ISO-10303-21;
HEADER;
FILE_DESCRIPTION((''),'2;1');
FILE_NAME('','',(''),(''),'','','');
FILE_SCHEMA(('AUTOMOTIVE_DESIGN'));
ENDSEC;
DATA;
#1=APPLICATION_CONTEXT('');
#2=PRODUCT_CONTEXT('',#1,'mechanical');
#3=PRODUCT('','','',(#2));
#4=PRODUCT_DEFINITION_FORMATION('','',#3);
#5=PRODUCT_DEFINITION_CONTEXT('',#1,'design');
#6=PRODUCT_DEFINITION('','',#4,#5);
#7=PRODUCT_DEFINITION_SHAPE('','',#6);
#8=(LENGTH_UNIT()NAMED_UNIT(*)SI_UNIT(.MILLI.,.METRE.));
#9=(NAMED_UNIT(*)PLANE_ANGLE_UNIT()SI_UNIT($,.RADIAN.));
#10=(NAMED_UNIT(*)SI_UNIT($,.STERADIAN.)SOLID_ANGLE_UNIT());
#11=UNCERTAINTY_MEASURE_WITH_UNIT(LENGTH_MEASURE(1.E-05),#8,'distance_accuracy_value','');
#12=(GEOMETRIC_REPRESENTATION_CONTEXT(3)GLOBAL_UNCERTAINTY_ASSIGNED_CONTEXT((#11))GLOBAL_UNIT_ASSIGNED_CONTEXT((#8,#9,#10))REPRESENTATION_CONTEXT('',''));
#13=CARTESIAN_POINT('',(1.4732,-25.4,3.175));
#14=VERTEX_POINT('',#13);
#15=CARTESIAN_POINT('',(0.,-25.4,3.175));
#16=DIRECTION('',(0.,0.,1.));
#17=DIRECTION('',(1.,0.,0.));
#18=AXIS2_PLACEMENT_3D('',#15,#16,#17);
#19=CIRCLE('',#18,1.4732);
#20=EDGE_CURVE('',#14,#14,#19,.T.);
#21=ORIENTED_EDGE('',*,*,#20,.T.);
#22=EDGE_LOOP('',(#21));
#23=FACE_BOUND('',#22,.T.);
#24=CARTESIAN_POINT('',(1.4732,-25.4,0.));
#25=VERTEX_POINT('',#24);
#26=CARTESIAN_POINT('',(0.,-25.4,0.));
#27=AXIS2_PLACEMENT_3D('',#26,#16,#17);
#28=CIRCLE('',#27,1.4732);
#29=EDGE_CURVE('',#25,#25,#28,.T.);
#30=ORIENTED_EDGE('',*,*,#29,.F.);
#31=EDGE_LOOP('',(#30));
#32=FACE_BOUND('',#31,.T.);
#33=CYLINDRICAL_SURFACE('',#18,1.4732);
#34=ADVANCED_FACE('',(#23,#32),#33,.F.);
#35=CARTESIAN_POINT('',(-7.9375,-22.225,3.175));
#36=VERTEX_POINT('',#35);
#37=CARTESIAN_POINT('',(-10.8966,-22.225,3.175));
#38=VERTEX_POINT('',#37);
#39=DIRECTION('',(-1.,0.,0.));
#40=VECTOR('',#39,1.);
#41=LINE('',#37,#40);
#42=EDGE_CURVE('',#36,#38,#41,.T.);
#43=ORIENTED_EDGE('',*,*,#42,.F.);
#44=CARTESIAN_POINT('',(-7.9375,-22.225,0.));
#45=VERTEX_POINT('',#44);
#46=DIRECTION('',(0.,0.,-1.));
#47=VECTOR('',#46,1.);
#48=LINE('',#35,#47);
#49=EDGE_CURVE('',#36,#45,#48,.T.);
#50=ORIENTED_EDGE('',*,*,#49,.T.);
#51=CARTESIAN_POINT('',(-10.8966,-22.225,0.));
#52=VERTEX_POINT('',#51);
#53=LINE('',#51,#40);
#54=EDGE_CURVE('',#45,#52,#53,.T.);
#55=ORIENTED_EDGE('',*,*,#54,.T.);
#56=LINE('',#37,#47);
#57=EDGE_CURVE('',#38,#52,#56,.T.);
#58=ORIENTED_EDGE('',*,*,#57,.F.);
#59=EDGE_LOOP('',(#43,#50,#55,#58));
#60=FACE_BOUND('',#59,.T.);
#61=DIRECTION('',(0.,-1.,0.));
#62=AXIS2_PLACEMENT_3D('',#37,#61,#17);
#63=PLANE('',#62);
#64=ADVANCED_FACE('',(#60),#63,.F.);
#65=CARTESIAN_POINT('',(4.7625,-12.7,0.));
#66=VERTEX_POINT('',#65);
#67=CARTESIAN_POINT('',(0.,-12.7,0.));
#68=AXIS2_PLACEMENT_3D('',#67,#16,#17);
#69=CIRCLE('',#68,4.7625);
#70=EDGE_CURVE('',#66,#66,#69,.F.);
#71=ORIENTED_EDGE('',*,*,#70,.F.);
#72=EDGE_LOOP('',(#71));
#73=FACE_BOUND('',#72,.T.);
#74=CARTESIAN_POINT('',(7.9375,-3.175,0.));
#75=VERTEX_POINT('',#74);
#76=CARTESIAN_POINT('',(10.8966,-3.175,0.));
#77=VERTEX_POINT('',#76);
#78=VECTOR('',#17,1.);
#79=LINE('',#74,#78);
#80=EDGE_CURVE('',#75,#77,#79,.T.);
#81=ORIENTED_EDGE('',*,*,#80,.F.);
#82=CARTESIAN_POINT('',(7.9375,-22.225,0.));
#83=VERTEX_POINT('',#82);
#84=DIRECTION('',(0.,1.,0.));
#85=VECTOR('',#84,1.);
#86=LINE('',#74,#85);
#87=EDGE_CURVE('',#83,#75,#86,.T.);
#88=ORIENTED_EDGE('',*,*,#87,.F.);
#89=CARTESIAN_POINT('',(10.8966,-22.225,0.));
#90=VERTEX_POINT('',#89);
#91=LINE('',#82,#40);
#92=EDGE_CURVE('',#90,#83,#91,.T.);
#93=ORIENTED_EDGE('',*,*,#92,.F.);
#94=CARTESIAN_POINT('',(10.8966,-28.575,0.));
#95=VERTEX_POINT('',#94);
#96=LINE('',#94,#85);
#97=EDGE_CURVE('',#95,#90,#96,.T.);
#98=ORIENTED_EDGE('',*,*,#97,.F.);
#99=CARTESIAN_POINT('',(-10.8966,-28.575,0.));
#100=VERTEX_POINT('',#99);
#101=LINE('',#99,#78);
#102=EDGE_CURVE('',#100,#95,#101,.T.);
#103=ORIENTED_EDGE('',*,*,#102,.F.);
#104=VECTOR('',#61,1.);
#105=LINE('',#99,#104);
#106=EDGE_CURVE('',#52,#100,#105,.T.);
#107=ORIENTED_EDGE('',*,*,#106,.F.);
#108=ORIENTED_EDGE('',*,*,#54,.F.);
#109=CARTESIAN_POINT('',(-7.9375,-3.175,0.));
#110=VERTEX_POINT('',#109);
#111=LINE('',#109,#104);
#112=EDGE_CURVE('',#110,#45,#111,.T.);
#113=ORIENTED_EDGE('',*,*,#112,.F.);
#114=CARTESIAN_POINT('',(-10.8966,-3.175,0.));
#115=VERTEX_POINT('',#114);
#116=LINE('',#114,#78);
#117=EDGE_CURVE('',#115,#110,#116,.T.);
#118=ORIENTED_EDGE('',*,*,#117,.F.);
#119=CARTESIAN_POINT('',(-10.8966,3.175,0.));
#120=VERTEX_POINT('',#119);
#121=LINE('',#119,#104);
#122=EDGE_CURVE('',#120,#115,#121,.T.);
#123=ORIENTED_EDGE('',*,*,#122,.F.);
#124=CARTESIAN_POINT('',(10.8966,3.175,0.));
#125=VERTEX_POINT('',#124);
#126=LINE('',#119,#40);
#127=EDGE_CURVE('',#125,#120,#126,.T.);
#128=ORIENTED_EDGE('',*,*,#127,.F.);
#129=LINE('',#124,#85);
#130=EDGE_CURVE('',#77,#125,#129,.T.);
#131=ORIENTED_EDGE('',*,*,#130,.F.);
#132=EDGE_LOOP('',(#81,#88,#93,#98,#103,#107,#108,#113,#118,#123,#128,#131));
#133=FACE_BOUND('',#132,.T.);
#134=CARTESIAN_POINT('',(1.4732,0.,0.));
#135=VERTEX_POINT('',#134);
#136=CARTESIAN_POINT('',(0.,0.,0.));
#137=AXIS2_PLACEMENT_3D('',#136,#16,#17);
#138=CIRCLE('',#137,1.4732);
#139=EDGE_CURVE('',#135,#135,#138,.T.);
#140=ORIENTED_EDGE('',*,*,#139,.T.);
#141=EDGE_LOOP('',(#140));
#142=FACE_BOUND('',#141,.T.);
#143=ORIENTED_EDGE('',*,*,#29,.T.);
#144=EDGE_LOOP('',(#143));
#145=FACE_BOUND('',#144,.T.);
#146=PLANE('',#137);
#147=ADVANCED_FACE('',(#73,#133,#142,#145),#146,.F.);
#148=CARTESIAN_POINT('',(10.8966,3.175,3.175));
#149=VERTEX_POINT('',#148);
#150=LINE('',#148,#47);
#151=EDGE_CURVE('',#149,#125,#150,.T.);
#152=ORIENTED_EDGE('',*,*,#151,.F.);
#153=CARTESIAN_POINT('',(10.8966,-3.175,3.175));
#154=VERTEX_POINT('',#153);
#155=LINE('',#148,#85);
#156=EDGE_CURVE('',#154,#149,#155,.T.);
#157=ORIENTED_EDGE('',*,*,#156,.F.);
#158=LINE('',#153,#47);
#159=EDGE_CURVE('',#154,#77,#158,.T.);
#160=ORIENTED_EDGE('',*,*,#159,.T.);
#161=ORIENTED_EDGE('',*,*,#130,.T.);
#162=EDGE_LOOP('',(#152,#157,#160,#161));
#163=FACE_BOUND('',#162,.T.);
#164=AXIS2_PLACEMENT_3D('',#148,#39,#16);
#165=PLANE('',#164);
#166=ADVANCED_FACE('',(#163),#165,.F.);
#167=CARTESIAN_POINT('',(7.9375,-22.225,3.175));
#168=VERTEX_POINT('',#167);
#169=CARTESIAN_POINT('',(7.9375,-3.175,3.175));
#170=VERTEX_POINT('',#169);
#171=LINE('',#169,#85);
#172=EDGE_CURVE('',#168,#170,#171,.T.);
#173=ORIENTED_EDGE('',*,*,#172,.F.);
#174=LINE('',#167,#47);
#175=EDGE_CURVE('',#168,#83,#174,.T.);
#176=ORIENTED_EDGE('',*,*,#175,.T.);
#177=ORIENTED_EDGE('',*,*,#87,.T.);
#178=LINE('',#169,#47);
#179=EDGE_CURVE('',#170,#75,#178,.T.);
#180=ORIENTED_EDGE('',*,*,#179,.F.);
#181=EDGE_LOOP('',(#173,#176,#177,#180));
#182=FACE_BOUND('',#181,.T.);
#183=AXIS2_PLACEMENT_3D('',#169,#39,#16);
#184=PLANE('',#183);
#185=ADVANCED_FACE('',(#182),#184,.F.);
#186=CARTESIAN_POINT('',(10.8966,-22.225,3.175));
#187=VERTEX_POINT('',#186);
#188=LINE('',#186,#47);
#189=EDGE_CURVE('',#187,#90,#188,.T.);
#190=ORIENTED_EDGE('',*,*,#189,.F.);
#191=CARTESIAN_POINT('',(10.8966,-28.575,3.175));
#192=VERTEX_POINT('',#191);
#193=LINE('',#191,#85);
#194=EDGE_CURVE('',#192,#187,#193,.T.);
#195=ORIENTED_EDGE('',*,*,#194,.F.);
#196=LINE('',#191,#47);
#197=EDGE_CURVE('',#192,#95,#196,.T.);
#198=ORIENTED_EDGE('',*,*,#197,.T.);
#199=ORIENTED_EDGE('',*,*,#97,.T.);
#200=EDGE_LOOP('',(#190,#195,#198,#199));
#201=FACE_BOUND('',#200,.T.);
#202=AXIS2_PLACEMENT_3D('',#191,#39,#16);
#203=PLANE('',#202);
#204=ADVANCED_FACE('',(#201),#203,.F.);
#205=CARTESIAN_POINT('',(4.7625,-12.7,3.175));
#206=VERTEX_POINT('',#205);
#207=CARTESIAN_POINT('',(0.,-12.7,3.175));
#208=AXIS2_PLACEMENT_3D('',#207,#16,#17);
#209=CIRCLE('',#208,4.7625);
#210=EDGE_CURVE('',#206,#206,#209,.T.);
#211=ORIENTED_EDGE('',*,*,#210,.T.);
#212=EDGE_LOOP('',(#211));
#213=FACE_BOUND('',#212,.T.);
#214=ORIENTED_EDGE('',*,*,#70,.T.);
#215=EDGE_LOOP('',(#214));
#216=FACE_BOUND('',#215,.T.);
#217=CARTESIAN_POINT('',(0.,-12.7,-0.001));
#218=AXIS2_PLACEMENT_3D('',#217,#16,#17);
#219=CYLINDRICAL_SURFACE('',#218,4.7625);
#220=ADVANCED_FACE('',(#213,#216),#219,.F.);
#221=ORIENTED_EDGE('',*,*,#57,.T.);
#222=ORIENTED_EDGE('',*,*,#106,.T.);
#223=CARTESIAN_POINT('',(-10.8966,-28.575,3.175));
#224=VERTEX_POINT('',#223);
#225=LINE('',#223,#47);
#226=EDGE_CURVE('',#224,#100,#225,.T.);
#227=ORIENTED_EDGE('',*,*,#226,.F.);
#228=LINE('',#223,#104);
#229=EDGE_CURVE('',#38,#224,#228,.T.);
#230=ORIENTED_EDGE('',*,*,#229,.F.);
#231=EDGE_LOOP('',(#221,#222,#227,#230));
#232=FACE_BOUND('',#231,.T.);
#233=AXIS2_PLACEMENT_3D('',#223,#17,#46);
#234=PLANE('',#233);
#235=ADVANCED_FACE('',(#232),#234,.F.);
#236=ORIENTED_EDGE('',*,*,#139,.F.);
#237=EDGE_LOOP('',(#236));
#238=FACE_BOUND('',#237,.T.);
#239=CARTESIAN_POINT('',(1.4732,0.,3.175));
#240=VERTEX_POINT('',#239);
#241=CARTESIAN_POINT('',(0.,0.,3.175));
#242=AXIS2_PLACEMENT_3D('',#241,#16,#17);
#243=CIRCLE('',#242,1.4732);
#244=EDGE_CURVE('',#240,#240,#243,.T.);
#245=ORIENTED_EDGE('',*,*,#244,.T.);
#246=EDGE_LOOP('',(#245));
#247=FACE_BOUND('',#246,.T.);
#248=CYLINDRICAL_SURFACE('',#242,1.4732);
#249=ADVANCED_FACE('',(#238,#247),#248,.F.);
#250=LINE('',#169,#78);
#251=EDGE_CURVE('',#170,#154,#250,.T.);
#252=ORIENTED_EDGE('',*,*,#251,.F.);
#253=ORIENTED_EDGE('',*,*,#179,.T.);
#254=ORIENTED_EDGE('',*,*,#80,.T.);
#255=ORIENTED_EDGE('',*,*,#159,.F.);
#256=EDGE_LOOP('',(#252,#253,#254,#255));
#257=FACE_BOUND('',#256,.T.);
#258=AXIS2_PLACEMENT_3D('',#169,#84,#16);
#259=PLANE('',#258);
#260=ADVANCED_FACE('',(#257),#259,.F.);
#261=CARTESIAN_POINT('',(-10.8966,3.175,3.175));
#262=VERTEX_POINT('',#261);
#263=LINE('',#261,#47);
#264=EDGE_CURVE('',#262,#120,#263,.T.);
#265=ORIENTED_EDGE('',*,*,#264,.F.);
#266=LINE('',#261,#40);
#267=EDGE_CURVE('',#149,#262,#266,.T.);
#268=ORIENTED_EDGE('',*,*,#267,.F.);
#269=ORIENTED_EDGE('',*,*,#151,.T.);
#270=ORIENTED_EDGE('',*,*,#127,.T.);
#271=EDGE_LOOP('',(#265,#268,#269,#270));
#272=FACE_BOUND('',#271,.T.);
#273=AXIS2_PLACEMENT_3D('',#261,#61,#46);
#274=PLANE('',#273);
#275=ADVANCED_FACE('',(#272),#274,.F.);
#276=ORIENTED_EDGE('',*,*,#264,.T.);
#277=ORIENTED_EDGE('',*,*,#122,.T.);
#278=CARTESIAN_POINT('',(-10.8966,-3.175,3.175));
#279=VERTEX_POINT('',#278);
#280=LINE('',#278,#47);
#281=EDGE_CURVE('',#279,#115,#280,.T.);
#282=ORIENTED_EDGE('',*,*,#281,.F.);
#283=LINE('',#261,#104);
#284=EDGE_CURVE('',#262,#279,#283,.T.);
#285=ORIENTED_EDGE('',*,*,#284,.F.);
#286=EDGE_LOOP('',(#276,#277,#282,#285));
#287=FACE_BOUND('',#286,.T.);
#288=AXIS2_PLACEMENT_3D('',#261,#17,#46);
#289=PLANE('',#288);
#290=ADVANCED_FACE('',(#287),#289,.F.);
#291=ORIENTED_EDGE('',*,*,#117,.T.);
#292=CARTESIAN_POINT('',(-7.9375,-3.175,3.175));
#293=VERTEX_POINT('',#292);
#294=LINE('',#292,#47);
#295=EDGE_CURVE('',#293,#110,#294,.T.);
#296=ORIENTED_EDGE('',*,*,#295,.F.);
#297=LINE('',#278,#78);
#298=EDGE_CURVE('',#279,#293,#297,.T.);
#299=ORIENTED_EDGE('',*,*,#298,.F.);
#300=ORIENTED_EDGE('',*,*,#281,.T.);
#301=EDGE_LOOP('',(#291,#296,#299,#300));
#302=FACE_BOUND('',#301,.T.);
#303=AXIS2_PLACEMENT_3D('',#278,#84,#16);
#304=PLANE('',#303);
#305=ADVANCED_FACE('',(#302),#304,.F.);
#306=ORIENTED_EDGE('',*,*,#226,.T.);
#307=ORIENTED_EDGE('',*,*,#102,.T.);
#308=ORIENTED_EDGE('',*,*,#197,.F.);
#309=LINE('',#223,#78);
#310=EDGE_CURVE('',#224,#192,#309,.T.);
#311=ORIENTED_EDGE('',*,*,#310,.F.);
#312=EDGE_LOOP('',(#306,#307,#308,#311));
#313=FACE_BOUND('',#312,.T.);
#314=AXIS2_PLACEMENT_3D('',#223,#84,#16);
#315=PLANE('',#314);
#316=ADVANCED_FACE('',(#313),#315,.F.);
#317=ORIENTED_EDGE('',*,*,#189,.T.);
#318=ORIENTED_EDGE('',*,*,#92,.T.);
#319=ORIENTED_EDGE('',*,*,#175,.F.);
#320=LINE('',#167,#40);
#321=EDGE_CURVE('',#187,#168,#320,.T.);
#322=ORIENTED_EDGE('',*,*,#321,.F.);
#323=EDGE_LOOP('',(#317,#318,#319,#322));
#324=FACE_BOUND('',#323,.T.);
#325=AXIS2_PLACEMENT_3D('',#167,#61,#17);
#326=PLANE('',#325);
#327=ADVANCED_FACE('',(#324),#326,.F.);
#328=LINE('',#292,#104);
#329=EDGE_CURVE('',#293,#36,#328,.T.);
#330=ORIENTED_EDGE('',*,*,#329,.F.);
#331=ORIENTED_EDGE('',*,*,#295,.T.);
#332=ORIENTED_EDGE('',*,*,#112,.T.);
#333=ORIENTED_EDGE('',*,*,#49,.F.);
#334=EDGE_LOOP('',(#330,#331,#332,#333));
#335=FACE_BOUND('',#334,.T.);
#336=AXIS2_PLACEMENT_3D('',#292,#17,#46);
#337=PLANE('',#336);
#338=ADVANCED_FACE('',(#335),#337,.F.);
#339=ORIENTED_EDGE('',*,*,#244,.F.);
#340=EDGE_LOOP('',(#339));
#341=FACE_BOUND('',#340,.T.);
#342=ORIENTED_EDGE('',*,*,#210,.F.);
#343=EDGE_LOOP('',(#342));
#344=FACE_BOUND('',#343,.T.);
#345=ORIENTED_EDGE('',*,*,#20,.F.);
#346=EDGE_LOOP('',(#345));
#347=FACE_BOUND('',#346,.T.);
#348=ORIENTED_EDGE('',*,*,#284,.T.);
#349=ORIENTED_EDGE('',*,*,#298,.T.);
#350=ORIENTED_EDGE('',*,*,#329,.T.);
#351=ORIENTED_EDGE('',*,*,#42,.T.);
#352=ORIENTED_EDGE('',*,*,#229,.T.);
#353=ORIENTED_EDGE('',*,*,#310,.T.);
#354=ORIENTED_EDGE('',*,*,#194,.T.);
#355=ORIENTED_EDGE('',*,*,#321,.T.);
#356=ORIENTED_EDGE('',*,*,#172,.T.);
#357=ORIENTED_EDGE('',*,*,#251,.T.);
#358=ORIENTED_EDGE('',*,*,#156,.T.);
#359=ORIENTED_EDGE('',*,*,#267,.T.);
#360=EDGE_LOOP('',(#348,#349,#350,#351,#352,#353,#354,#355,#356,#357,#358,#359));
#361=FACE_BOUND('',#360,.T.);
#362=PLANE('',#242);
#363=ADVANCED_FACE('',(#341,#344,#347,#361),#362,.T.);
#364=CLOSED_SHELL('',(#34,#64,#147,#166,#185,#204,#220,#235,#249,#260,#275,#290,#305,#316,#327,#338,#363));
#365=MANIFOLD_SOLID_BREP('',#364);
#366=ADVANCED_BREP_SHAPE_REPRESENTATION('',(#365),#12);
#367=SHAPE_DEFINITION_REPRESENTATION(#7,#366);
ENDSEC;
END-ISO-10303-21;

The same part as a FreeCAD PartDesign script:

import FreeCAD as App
import Part
import Sketcher
from FreeCAD import Vector
Q = App.Units.Quantity

doc = App.newDocument("Part")
params = doc.addObject("Spreadsheet::Sheet", "Params")
for row, (alias, value) in enumerate([
    ("sketch1_height", "0.25 in"),
    ("sketch1_width", "0.858 in"),
    ("pad1_length", "0.125 in"),
    ("sketch2_diameter", "0.116 in"),
    ("hole_diameter", "0.116 in"),
    ("hole_depth", "0.13 in"),
    ("sketch3_diameter", "0.375 in"),
], start=1):
    params.set(f"A{row}", alias)
    params.set(f"B{row}", "=" + value)
    params.setAlias(f"B{row}", alias)

body = doc.addObject("PartDesign::Body", "Body")

# Sketch on XY plane
sketch1 = body.newObject("Sketcher::SketchObject", "Sketch")
sketch1.AttachmentSupport = (doc.getObject("XY_Plane"), [""])
sketch1.MapMode = "FlatFace"
sketch1.addGeometry(Part.LineSegment(Vector(7.9, -3.2, 0), Vector(10.9, -3.2, 0)), False)
sketch1.addGeometry(Part.LineSegment(Vector(10.9, -3.2, 0), Vector(10.9, 3.2, 0)), False)
sketch1.addGeometry(Part.LineSegment(Vector(10.9, 3.2, 0), Vector(-10.9, 3.2, 0)), False)
sketch1.addGeometry(Part.LineSegment(Vector(-10.9, 3.2, 0), Vector(-10.9, -3.2, 0)), False)
sketch1.addGeometry(Part.LineSegment(Vector(-10.9, -3.2, 0), Vector(-7.9, -3.2, 0)), False)
sketch1.addGeometry(Part.LineSegment(Vector(-7.9, -3.2, 0), Vector(-7.9, -22.2, 0)), False)
sketch1.addGeometry(Part.LineSegment(Vector(-7.9, -22.2, 0), Vector(-10.9, -22.2, 0)), False)
sketch1.addGeometry(Part.LineSegment(Vector(-10.9, -22.2, 0), Vector(-10.9, -28.6, 0)), False)
sketch1.addGeometry(Part.LineSegment(Vector(-10.9, -28.6, 0), Vector(10.9, -28.6, 0)), False)
sketch1.addGeometry(Part.LineSegment(Vector(10.9, -28.6, 0), Vector(10.9, -22.2, 0)), False)
sketch1.addGeometry(Part.LineSegment(Vector(10.9, -22.2, 0), Vector(7.9, -22.2, 0)), False)
sketch1.addGeometry(Part.LineSegment(Vector(7.9, -22.2, 0), Vector(7.9, -3.2, 0)), False)
sketch1.addConstraint(Sketcher.Constraint("Coincident", 0, 2, 1, 1))
sketch1.addConstraint(Sketcher.Constraint("Coincident", 1, 2, 2, 1))
sketch1.addConstraint(Sketcher.Constraint("Coincident", 2, 2, 3, 1))
sketch1.addConstraint(Sketcher.Constraint("Coincident", 3, 2, 4, 1))
sketch1.addConstraint(Sketcher.Constraint("Coincident", 4, 2, 5, 1))
sketch1.addConstraint(Sketcher.Constraint("Coincident", 5, 2, 6, 1))
sketch1.addConstraint(Sketcher.Constraint("Coincident", 6, 2, 7, 1))
sketch1.addConstraint(Sketcher.Constraint("Coincident", 7, 2, 8, 1))
sketch1.addConstraint(Sketcher.Constraint("Coincident", 8, 2, 9, 1))
sketch1.addConstraint(Sketcher.Constraint("Coincident", 9, 2, 10, 1))
sketch1.addConstraint(Sketcher.Constraint("Coincident", 10, 2, 11, 1))
sketch1.addConstraint(Sketcher.Constraint("Coincident", 11, 2, 0, 1))
sketch1.addConstraint(Sketcher.Constraint("Horizontal", 0))
sketch1.addConstraint(Sketcher.Constraint("Vertical", 1))
sketch1.addConstraint(Sketcher.Constraint("Horizontal", 2))
sketch1.addConstraint(Sketcher.Constraint("Vertical", 3))
sketch1.addConstraint(Sketcher.Constraint("Horizontal", 4))
sketch1.addConstraint(Sketcher.Constraint("Vertical", 5))
sketch1.addConstraint(Sketcher.Constraint("Horizontal", 6))
sketch1.addConstraint(Sketcher.Constraint("Vertical", 7))
sketch1.addConstraint(Sketcher.Constraint("Horizontal", 8))
sketch1.addConstraint(Sketcher.Constraint("Vertical", 9))
sketch1.addConstraint(Sketcher.Constraint("Horizontal", 10))
sketch1.addConstraint(Sketcher.Constraint("Vertical", 11))
sketch1.addConstraint(Sketcher.Constraint("Symmetric", 0, 2, 2, 2, -1, 1))
sketch1.addConstraint(Sketcher.Constraint("Symmetric", 6, 2, 9, 2, -2))
sketch1.addConstraint(Sketcher.Constraint("Symmetric", 4, 2, 11, 2, -2))
sketch1.addConstraint(Sketcher.Constraint("Vertical", 3, 2, 6, 2))
sketch1.addConstraint(Sketcher.Constraint("Equal", 3, 7))
sketch1.addConstraint(Sketcher.Constraint("DistanceY", 5, 2, 2, 2, Q("1 in")))
sketch1.addConstraint(Sketcher.Constraint("DistanceY", 1, 1, 1, 2, Q("0.25 in")))
sketch1.addConstraint(Sketcher.Constraint("DistanceX", 2, 2, 2, 1, Q("0.858 in")))
sketch1.addConstraint(Sketcher.Constraint("DistanceX", 0, 1, 0, 2, Q("0.1165 in")))
sketch1.setExpression("Constraints[30]", "Params.sketch1_height")
sketch1.setExpression("Constraints[31]", "Params.sketch1_width")
pad1 = body.newObject("PartDesign::Pad", "Pad")
pad1.Profile = sketch1
pad1.setExpression("Length", "Params.pad1_length")

# Sketch on XY plane
sketch2 = body.newObject("Sketcher::SketchObject", "Sketch001")
sketch2.AttachmentSupport = (doc.getObject("XY_Plane"), [""])
sketch2.MapMode = "FlatFace"
sketch2.AttachmentOffset = App.Placement(Vector(0, 0, 0.125 * 25.4), App.Rotation())
sketch2.addGeometry(Part.Circle(Vector(0, 0, 0), Vector(0, 0, 1), 1.5), False)
sketch2.addGeometry(Part.Circle(Vector(0, -25.4, 0), Vector(0, 0, 1), 1.5), False)
sketch2.addConstraint(Sketcher.Constraint("Coincident", 0, 3, -1, 1))
sketch2.addConstraint(Sketcher.Constraint("Equal", 0, 1))
sketch2.addConstraint(Sketcher.Constraint("PointOnObject", 1, 3, -2))
sketch2.addConstraint(Sketcher.Constraint("Diameter", 0, Q("0.116 in")))
sketch2.addConstraint(Sketcher.Constraint("DistanceY", 1, 3, -1, 1, Q("1 in")))
sketch2.setExpression("Constraints[3]", "Params.sketch2_diameter")
doc.recompute()
hole = body.newObject("PartDesign::Hole", "Hole")
hole.Profile = sketch2
hole.ThreadType = "None"
hole.setExpression("Diameter", "Params.hole_diameter")
hole.DepthType = "Dimension"
hole.setExpression("Depth", "Params.hole_depth")
hole.DrillPoint = "Angled"
hole.DrillPointAngle = 118

# Sketch on XY plane
sketch3 = body.newObject("Sketcher::SketchObject", "Sketch002")
sketch3.AttachmentSupport = (doc.getObject("XY_Plane"), [""])
sketch3.MapMode = "FlatFace"
sketch3.AttachmentOffset = App.Placement(Vector(0, 0, 0.125 * 25.4), App.Rotation())
sketch3.addGeometry(Part.Circle(Vector(0, -12.7, 0), Vector(0, 0, 1), 4.8), False)
sketch3.addConstraint(Sketcher.Constraint("PointOnObject", 0, 3, -2))
sketch3.addConstraint(Sketcher.Constraint("Diameter", 0, Q("0.375 in")))
sketch3.addConstraint(Sketcher.Constraint("DistanceY", 0, 3, -1, 1, Q("0.5 in")))
sketch3.setExpression("Constraints[1]", "Params.sketch3_diameter")
pocket1 = body.newObject("PartDesign::Pocket", "Pocket")
pocket1.Profile = sketch3
pocket1.Type = "UpToFirst"

doc.recompute()
